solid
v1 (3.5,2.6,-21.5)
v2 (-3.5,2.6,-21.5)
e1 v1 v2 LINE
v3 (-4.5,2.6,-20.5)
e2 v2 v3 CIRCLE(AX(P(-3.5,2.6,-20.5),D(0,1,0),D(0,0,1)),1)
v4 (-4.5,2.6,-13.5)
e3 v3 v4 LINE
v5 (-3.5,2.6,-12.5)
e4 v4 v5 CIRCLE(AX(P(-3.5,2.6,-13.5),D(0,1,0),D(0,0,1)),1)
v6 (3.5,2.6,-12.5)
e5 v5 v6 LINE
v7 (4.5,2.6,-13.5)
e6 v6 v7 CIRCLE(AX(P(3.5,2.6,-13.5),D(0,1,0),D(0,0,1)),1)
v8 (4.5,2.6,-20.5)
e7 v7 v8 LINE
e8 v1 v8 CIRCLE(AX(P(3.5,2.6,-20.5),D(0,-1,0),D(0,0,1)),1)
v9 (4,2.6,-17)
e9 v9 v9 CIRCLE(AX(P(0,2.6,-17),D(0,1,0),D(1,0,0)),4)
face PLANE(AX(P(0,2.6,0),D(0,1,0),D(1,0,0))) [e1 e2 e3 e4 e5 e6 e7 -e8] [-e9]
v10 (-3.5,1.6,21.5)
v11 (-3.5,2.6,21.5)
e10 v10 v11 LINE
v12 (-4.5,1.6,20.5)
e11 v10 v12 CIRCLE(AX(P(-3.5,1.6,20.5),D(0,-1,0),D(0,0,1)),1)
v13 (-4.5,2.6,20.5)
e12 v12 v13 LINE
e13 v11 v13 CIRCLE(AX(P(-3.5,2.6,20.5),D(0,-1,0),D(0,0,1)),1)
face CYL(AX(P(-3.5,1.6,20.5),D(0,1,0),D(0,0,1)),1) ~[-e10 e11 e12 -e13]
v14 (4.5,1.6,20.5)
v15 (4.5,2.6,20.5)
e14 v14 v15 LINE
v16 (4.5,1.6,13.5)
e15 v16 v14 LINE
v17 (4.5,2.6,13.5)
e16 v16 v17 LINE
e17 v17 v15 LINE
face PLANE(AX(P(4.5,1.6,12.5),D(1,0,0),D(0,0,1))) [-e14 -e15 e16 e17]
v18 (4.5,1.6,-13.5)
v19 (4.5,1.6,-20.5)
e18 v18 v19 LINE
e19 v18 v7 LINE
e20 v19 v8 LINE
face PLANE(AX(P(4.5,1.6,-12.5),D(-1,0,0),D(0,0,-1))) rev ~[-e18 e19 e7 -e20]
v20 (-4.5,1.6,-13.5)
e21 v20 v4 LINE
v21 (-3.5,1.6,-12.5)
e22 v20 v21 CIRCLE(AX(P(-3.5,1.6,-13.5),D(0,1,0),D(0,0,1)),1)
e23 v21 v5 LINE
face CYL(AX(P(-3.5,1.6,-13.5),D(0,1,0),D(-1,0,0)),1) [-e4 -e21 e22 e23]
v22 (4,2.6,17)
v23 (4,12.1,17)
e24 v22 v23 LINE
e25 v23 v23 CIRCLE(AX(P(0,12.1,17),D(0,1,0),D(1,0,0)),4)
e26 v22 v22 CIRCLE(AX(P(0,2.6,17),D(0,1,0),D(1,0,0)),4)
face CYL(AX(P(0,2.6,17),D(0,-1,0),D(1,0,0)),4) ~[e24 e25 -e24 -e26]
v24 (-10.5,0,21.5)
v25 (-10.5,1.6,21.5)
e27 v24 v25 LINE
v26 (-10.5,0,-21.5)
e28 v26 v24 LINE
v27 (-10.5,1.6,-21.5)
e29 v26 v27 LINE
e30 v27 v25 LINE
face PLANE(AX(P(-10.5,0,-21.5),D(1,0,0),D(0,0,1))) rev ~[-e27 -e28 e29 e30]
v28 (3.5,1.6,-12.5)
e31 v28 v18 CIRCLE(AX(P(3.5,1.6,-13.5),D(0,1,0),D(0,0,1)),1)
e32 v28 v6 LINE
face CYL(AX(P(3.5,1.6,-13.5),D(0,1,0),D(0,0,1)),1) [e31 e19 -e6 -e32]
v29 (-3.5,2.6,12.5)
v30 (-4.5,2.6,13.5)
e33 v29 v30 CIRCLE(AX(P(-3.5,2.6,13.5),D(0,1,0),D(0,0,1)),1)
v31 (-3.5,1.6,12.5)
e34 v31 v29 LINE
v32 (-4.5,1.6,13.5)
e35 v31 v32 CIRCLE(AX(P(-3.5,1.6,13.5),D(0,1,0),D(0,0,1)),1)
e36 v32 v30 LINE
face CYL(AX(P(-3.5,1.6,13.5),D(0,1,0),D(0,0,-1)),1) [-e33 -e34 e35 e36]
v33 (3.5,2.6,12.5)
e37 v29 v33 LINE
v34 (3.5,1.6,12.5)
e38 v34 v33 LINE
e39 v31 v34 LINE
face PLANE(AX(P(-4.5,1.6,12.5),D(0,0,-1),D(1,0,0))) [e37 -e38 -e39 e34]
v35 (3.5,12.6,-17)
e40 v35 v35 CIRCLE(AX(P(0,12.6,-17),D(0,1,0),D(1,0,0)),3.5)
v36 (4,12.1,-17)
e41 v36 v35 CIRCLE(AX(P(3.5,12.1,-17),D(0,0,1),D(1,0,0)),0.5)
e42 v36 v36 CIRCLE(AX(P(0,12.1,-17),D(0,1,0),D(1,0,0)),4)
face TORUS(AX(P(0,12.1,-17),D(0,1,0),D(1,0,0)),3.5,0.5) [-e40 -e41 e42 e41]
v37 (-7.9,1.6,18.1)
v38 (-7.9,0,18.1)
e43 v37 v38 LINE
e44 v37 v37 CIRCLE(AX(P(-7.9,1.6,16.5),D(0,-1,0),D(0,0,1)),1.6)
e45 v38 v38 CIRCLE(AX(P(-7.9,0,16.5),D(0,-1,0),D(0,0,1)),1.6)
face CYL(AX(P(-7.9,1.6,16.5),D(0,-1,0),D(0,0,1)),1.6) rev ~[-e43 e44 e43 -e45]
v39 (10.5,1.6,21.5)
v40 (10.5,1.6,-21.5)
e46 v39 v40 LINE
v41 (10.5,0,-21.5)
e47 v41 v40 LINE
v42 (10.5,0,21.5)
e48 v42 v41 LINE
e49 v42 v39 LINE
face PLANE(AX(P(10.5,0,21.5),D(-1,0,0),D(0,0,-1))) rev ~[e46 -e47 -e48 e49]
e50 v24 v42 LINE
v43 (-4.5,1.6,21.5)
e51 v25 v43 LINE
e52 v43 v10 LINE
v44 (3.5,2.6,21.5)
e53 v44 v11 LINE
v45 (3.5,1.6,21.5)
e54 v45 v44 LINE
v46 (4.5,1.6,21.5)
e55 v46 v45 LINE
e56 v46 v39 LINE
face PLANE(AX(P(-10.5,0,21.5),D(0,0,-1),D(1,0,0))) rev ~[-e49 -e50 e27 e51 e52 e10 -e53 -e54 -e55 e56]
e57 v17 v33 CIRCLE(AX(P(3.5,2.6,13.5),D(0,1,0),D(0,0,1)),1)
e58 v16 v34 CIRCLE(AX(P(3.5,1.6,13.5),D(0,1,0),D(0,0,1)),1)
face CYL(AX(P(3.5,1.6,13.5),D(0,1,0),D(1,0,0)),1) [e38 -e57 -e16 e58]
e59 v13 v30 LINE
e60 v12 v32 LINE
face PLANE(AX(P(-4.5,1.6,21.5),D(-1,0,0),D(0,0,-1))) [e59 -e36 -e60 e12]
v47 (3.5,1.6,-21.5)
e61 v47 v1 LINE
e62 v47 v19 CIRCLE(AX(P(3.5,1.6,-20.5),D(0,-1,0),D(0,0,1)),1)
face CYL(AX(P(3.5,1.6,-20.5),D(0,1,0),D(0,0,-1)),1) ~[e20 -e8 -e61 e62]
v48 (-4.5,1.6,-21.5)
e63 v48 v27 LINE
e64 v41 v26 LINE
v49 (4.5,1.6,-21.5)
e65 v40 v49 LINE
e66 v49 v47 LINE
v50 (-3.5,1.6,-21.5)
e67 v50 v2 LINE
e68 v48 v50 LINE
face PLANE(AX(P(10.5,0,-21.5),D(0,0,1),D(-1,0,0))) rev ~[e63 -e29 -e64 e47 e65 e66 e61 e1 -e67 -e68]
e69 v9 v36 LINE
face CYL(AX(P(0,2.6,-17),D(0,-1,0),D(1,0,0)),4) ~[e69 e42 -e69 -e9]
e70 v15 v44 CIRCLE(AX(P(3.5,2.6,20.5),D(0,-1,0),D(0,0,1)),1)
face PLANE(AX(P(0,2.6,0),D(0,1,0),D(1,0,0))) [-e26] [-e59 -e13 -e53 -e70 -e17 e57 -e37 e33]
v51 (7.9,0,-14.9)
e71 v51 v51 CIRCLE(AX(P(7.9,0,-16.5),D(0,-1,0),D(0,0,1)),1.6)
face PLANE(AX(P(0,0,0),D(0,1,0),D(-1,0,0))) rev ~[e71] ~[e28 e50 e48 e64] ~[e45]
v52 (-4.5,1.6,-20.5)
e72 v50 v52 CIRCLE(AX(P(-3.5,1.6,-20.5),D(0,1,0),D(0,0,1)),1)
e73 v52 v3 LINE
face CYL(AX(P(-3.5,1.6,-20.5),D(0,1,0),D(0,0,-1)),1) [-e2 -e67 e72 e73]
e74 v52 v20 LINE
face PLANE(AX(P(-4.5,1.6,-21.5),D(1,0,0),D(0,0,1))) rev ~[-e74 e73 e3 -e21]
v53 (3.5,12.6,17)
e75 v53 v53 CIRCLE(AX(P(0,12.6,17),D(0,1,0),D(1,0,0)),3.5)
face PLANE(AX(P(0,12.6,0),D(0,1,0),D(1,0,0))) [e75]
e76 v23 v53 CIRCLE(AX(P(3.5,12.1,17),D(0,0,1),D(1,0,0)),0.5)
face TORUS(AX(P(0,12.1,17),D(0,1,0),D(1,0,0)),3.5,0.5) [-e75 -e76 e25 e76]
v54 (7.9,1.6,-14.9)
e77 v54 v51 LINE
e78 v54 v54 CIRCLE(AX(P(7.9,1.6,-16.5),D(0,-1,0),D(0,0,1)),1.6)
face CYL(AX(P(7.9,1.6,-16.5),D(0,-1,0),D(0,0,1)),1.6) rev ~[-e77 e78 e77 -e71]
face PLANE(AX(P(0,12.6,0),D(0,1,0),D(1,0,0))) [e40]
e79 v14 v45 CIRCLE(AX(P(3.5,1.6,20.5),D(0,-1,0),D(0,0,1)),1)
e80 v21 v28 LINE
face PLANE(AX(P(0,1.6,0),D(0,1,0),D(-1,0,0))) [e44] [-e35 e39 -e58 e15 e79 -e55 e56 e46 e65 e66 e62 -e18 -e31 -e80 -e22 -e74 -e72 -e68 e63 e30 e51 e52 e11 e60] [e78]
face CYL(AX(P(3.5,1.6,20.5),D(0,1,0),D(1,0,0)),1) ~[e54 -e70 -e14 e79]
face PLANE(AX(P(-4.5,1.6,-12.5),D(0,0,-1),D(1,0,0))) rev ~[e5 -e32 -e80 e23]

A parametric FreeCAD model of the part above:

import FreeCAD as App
import Part
import Sketcher

V = App.Vector
Q = App.Units.Quantity


def edges_at(feature, points):
    """Names of the edges that pass closest to the given points."""
    edges = feature.Shape.Edges
    near = lambda p: min(range(len(edges)), key=lambda i: edges[i].distToShape(Part.Vertex(*p))[0])
    return sorted({f"Edge{near(p) + 1}" for p in points})

doc = App.newDocument("Part")
body = doc.addObject("PartDesign::Body", "Body")

sketch1 = doc.addObject("Sketcher::SketchObject", "Sketch")
body.addObject(sketch1)
sketch1.AttachmentSupport = (doc.XZ_Plane, [""])
sketch1.MapMode = "FlatFace"
sketch1.addGeometry(Part.LineSegment(V(-10.5, 21.5, 0), V(10.5, 21.5, 0)), False)
sketch1.addGeometry(Part.LineSegment(V(10.5, 21.5, 0), V(10.5, -21.5, 0)), False)
sketch1.addGeometry(Part.LineSegment(V(10.5, -21.5, 0), V(-10.5, -21.5, 0)), False)
sketch1.addGeometry(Part.LineSegment(V(-10.5, -21.5, 0), V(-10.5, 21.5, 0)), False)
sketch1.addConstraint(Sketcher.Constraint("Coincident", 0, 2, 1, 1))
sketch1.addConstraint(Sketcher.Constraint("Coincident", 1, 2, 2, 1))
sketch1.addConstraint(Sketcher.Constraint("Coincident", 2, 2, 3, 1))
sketch1.addConstraint(Sketcher.Constraint("Coincident", 3, 2, 0, 1))
sketch1.addConstraint(Sketcher.Constraint("Horizontal", 0))
sketch1.addConstraint(Sketcher.Constraint("Vertical", 1))
sketch1.addConstraint(Sketcher.Constraint("Horizontal", 2))
sketch1.addConstraint(Sketcher.Constraint("Vertical", 3))
sketch1.addConstraint(Sketcher.Constraint("Symmetric", 0, 2, 2, 2, -1, 1))
sketch1.addConstraint(Sketcher.Constraint("DistanceX", 0, 1, 0, 2, Q("21 mm")))
sketch1.addConstraint(Sketcher.Constraint("DistanceY", 1, 2, 1, 1, Q("43 mm")))
pad1 = doc.addObject("PartDesign::Pad", "Pad")
body.addObject(pad1)
pad1.Profile = sketch1
pad1.Length = 1.6
pad1.Reversed = True

sketch2 = doc.addObject("Sketcher::SketchObject", "Sketch001")
body.addObject(sketch2)
sketch2.AttachmentSupport = (doc.XZ_Plane, [""])
sketch2.MapMode = "FlatFace"
sketch2.AttachmentOffset = App.Placement(V(0, 0, -1.6), App.Rotation())
sketch2.addGeometry(Part.LineSegment(V(4.5, 21.5, 0), V(4.5, 12.5, 0)), False)
sketch2.addGeometry(Part.LineSegment(V(4.5, 12.5, 0), V(-4.5, 12.5, 0)), False)
sketch2.addGeometry(Part.LineSegment(V(-4.5, 12.5, 0), V(-4.5, 21.5, 0)), False)
sketch2.addGeometry(Part.LineSegment(V(-4.5, 21.5, 0), V(4.5, 21.5, 0)), False)
sketch2.addGeometry(Part.LineSegment(V(-4.5, -12.5, 0), V(4.5, -12.5, 0)), False)
sketch2.addGeometry(Part.LineSegment(V(4.5, -12.5, 0), V(4.5, -21.5, 0)), False)
sketch2.addGeometry(Part.LineSegment(V(4.5, -21.5, 0), V(-4.5, -21.5, 0)), False)
sketch2.addGeometry(Part.LineSegment(V(-4.5, -21.5, 0), V(-4.5, -12.5, 0)), False)
sketch2.addConstraint(Sketcher.Constraint("Coincident", 0, 2, 1, 1))
sketch2.addConstraint(Sketcher.Constraint("Coincident", 1, 2, 2, 1))
sketch2.addConstraint(Sketcher.Constraint("Coincident", 2, 2, 3, 1))
sketch2.addConstraint(Sketcher.Constraint("Coincident", 3, 2, 0, 1))
sketch2.addConstraint(Sketcher.Constraint("Coincident", 4, 2, 5, 1))
sketch2.addConstraint(Sketcher.Constraint("Coincident", 5, 2, 6, 1))
sketch2.addConstraint(Sketcher.Constraint("Coincident", 6, 2, 7, 1))
sketch2.addConstraint(Sketcher.Constraint("Coincident", 7, 2, 4, 1))
sketch2.addConstraint(Sketcher.Constraint("Vertical", 0))
sketch2.addConstraint(Sketcher.Constraint("Horizontal", 1))
sketch2.addConstraint(Sketcher.Constraint("Vertical", 2))
sketch2.addConstraint(Sketcher.Constraint("Horizontal", 3))
sketch2.addConstraint(Sketcher.Constraint("Horizontal", 4))
sketch2.addConstraint(Sketcher.Constraint("Vertical", 5))
sketch2.addConstraint(Sketcher.Constraint("Horizontal", 6))
sketch2.addConstraint(Sketcher.Constraint("Vertical", 7))
sketch2.addConstraint(Sketcher.Constraint("Symmetric", 1, 2, 4, 2, -1, 1))
sketch2.addConstraint(Sketcher.Constraint("Symmetric", 3, 2, 6, 2, -1, 1))
sketch2.addConstraint(Sketcher.Constraint("Vertical", 3, 2, 4, 2))
sketch2.addConstraint(Sketcher.Constraint("Equal", 6, 0))
sketch2.addConstraint(Sketcher.Constraint("DistanceX", 1, 2, 1, 1, Q("9 mm")))
sketch2.addConstraint(Sketcher.Constraint("DistanceY", 4, 2, 0, 2, Q("25 mm")))
pad2 = doc.addObject("PartDesign::Pad", "Pad001")
body.addObject(pad2)
pad2.Profile = sketch2
pad2.Length = 1
pad2.Reversed = True

sketch3 = doc.addObject("Sketcher::SketchObject", "Sketch002")
body.addObject(sketch3)
sketch3.AttachmentSupport = (doc.XZ_Plane, [""])
sketch3.MapMode = "FlatFace"
sketch3.AttachmentOffset = App.Placement(V(0, 0, -2.6), App.Rotation())
sketch3.addGeometry(Part.Circle(V(0, 17, 0), V(0, 0, 1), 4), False)
sketch3.addGeometry(Part.Circle(V(0, -17, 0), V(0, 0, 1), 4), False)
sketch3.addConstraint(Sketcher.Constraint("Equal", 0, 1))
sketch3.addConstraint(Sketcher.Constraint("Symmetric", 0, 3, 1, 3, -1, 1))
sketch3.addConstraint(Sketcher.Constraint("PointOnObject", 0, 3, -2))
sketch3.addConstraint(Sketcher.Constraint("Diameter", 0, Q("8 mm")))
sketch3.addConstraint(Sketcher.Constraint("DistanceY", -1, 1, 0, 3, Q("17 mm")))
pad3 = doc.addObject("PartDesign::Pad", "Pad002")
body.addObject(pad3)
pad3.Profile = sketch3
pad3.Length = 10
pad3.Reversed = True
doc.recompute()

fillet = doc.addObject("PartDesign::Fillet", "Fillet")
body.addObject(fillet)
fillet.Base = (pad3, edges_at(pad3, [(-4, 12.6, 17), (-4, 12.6, -17)]))
fillet.Radius = 0.5

sketch4 = doc.addObject("Sketcher::SketchObject", "Sketch003")
body.addObject(sketch4)
sketch4.AttachmentSupport = (doc.XZ_Plane, [""])
sketch4.MapMode = "FlatFace"
sketch4.AttachmentOffset = App.Placement(V(0, 0, -1.6), App.Rotation())
sketch4.addGeometry(Part.Circle(V(-7.9, 16.5, 0), V(0, 0, 1), 1.6), False)
sketch4.addGeometry(Part.Circle(V(7.9, -16.5, 0), V(0, 0, 1), 1.6), False)
sketch4.addConstraint(Sketcher.Constraint("Equal", 0, 1))
sketch4.addConstraint(Sketcher.Constraint("Symmetric", 0, 3, 1, 3, -1, 1))
sketch4.addConstraint(Sketcher.Constraint("Diameter", 0, Q("3.2 mm")))
sketch4.addConstraint(Sketcher.Constraint("DistanceY", 1, 3, 0, 3, Q("33 mm")))
sketch4.addConstraint(Sketcher.Constraint("DistanceX", 0, 3, -1, 1, Q("7.9 mm")))
doc.recompute()
hole = doc.addObject("PartDesign::Hole", "Hole")
body.addObject(hole)
hole.Profile = sketch4
hole.ThreadType = "None"
hole.Diameter = 3.2
hole.DepthType = "ThroughAll"
hole.Reversed = True
doc.recompute()

fillet2 = doc.addObject("PartDesign::Fillet", "Fillet001")
body.addObject(fillet2)
fillet2.Base = (hole, edges_at(hole, [
    (4.5, 2.1, 12.5),
    (4.5, 2.1, -12.5),
    (-4.5, 2.1, -12.5),
    (4.5, 2.1, -21.5),
    (4.5, 2.1, 21.5),
    (-4.5, 2.1, 21.5),
    (-4.5, 2.1, 12.5),
    (-4.5, 2.1, -21.5),
]))
fillet2.Radius = 1

doc.recompute()
